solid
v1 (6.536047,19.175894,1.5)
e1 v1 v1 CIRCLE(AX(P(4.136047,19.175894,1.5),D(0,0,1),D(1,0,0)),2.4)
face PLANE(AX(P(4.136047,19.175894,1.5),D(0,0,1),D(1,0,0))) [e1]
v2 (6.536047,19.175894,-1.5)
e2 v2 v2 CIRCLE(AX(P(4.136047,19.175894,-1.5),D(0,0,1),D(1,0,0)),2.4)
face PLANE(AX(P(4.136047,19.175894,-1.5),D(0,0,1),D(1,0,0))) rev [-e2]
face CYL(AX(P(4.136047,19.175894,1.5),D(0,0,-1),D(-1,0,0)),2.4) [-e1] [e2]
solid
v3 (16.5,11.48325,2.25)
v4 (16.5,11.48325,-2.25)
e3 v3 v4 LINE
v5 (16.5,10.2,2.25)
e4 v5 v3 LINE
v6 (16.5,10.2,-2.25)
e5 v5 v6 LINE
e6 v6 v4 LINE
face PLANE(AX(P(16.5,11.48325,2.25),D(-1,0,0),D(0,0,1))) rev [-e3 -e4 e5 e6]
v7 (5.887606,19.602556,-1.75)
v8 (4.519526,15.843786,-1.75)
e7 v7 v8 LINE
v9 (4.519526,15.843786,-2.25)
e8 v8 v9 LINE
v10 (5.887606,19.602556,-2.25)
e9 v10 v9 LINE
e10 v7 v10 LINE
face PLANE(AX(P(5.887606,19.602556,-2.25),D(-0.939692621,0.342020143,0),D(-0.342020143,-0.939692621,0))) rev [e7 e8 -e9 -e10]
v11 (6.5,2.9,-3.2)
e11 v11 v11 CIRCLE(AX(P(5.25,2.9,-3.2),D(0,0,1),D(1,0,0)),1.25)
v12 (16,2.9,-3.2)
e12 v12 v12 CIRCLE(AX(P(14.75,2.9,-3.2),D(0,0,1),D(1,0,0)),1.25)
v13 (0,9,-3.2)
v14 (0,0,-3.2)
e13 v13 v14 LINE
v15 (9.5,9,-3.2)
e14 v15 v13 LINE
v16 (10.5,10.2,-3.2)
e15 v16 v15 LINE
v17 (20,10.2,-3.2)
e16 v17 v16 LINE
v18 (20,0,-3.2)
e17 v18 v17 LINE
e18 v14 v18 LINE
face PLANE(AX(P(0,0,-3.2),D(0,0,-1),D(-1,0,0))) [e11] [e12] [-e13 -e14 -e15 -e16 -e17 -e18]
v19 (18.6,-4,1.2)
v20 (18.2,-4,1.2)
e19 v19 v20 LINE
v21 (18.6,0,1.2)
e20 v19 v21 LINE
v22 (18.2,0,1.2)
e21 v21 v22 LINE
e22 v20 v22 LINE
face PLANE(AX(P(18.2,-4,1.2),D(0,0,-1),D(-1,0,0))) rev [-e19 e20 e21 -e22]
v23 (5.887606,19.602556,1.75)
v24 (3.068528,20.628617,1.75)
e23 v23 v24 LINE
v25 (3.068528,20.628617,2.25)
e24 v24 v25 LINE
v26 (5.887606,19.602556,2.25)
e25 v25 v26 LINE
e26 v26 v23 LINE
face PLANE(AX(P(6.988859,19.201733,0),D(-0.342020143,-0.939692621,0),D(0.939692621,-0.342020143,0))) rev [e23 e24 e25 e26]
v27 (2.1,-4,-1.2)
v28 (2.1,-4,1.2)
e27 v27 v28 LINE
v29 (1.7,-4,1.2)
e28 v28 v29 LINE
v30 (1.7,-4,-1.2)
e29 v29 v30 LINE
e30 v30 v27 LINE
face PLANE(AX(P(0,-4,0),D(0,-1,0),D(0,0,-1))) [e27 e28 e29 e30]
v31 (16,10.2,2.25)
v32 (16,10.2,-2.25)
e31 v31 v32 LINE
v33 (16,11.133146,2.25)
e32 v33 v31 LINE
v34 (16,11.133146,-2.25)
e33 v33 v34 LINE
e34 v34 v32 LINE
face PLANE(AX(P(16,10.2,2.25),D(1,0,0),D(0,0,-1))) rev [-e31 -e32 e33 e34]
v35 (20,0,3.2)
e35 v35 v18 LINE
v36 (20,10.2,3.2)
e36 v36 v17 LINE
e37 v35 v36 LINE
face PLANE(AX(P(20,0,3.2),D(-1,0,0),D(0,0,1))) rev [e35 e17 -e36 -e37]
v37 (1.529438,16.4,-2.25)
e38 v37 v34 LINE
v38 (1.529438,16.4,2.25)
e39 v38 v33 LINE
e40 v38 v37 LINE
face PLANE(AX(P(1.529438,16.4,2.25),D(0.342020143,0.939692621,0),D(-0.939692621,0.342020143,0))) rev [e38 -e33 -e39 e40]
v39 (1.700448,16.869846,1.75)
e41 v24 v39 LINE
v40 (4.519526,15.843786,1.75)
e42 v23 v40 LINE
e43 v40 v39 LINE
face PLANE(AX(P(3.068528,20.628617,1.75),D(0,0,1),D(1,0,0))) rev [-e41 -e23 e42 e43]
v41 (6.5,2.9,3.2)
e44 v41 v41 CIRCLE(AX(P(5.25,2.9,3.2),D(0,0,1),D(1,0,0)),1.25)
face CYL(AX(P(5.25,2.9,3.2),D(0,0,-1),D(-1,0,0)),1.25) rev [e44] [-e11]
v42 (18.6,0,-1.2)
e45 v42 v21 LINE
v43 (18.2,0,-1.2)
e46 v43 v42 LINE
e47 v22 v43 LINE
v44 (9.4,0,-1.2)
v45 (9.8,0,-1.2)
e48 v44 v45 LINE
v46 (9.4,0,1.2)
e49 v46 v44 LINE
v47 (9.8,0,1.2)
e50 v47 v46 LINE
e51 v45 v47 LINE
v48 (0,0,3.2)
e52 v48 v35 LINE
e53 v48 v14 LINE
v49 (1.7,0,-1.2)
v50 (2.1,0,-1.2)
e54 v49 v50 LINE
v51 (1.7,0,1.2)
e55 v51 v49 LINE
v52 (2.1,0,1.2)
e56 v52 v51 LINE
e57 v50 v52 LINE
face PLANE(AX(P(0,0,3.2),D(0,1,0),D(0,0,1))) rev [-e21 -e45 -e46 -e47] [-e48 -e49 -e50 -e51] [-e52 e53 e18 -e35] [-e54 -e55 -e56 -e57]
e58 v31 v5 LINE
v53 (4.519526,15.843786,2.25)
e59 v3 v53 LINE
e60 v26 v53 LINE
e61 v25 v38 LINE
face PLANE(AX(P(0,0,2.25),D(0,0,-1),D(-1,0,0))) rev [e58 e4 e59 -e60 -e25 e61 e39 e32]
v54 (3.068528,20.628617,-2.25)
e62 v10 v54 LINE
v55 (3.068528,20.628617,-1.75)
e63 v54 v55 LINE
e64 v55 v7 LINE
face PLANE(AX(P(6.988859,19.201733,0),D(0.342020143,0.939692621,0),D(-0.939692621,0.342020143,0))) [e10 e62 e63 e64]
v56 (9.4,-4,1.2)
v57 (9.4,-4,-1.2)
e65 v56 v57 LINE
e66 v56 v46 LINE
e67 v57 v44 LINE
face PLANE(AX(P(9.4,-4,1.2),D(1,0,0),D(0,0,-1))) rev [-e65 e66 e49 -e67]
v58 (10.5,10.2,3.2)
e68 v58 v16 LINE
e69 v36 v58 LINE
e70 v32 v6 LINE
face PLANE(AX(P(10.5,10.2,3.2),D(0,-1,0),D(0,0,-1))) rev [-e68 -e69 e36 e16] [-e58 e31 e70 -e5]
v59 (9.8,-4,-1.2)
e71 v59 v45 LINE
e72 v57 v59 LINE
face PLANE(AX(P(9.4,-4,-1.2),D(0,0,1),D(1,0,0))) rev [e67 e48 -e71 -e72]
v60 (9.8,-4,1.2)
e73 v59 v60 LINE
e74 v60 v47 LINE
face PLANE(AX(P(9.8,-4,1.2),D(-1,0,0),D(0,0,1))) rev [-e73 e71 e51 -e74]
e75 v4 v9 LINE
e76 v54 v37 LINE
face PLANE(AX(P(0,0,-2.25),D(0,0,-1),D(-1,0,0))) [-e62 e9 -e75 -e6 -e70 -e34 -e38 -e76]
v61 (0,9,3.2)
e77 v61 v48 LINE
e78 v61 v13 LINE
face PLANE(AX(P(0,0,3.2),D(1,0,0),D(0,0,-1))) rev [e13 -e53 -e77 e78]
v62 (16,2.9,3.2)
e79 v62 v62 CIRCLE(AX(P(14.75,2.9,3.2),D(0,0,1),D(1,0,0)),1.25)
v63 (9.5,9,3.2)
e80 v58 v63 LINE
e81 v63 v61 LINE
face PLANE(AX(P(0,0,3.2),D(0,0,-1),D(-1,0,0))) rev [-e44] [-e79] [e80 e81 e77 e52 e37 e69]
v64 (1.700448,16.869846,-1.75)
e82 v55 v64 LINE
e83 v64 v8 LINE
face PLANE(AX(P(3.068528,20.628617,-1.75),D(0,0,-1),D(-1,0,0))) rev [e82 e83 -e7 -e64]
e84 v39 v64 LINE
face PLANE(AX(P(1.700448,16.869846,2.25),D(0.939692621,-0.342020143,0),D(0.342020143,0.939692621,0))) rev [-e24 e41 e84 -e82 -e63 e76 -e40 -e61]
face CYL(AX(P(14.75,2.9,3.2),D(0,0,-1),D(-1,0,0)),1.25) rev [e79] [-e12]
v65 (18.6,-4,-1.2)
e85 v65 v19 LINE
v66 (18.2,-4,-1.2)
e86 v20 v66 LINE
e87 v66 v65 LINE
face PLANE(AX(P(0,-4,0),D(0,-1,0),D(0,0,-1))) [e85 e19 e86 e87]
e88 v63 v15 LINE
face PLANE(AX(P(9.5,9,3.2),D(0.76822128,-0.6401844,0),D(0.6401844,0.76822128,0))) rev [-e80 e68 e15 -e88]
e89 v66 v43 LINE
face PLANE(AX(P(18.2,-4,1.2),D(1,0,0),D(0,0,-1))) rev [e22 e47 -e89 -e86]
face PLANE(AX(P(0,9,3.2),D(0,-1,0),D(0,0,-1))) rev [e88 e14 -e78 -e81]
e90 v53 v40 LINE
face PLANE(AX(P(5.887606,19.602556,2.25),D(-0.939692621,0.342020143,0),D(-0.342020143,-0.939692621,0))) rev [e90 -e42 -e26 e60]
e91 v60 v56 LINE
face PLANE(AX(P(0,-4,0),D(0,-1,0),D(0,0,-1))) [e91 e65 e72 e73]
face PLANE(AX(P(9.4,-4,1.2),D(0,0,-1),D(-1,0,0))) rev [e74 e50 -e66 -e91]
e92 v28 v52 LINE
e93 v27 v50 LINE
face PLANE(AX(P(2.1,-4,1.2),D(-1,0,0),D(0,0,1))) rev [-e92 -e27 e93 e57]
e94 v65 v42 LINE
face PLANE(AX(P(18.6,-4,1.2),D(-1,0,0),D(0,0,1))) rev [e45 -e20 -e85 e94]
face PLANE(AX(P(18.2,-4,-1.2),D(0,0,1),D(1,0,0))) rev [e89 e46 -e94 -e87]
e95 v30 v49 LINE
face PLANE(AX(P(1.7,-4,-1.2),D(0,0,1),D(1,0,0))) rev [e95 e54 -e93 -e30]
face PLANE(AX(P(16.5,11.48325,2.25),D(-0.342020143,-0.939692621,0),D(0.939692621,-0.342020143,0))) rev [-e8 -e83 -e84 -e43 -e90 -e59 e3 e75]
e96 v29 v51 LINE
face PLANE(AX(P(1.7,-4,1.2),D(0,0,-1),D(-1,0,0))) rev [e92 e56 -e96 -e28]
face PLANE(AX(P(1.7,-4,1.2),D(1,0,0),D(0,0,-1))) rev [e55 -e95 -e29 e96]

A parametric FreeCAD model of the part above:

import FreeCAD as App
import Part
import Sketcher

V = App.Vector
Q = App.Units.Quantity

doc = App.newDocument("Part")
body = doc.addObject("PartDesign::Body", "Body")

# Sketch on XY plane
sketch1 = body.newObject("Sketcher::SketchObject", "Sketch")
sketch1.AttachmentSupport = (doc.getObject("XY_Plane"), [""])
sketch1.MapMode = "FlatFace"
sketch1.addGeometry(Part.LineSegment(V(9.5, 9, 0), V(0, 9, 0)), False)
sketch1.addGeometry(Part.LineSegment(V(0, 9, 0), V(0, 0, 0)), False)
sketch1.addGeometry(Part.LineSegment(V(0, 0, 0), V(20, 0, 0)), False)
sketch1.addGeometry(Part.LineSegment(V(20, 0, 0), V(20, 10.2, 0)), False)
sketch1.addGeometry(Part.LineSegment(V(20, 10.2, 0), V(10.5, 10.2, 0)), False)
sketch1.addGeometry(Part.LineSegment(V(10.5, 10.2, 0), V(9.5, 9, 0)), False)
sketch1.addGeometry(Part.Circle(V(14.8, 2.9, 0), V(0, 0, 1), 1.2), False)
sketch1.addGeometry(Part.Circle(V(5.2, 2.9, 0), V(0, 0, 1), 1.2), False)
sketch1.addConstraint(Sketcher.Constraint("Coincident", 0, 2, 1, 1))
sketch1.addConstraint(Sketcher.Constraint("Coincident", 1, 2, 2, 1))
sketch1.addConstraint(Sketcher.Constraint("Coincident", 2, 2, 3, 1))
sketch1.addConstraint(Sketcher.Constraint("Coincident", 3, 2, 4, 1))
sketch1.addConstraint(Sketcher.Constraint("Coincident", 4, 2, 5, 1))
sketch1.addConstraint(Sketcher.Constraint("Coincident", 5, 2, 0, 1))
sketch1.addConstraint(Sketcher.Constraint("Horizontal", 0))
sketch1.addConstraint(Sketcher.Constraint("Vertical", 1))
sketch1.addConstraint(Sketcher.Constraint("Horizontal", 2))
sketch1.addConstraint(Sketcher.Constraint("Vertical", 3))
sketch1.addConstraint(Sketcher.Constraint("Horizontal", 4))
sketch1.addConstraint(Sketcher.Constraint("Coincident", 1, 2, -1, 1))
sketch1.addConstraint(Sketcher.Constraint("Equal", 6, 7))
sketch1.addConstraint(Sketcher.Constraint("Horizontal", 6, 3, 7, 3))
sketch1.addConstraint(Sketcher.Constraint("Equal", 0, 4))
sketch1.addConstraint(Sketcher.Constraint("Diameter", 6, Q("2.5 mm")))
sketch1.addConstraint(Sketcher.Constraint("DistanceX", 2, 1, 2, 2, Q("20 mm")))
sketch1.addConstraint(Sketcher.Constraint("DistanceY", 1, 2, 1, 1, Q("9 mm")))
sketch1.addConstraint(Sketcher.Constraint("DistanceX", 0, 2, 0, 1, Q("9.5 mm")))
sketch1.addConstraint(Sketcher.Constraint("DistanceY", 3, 1, 3, 2, Q("10.2 mm")))
sketch1.addConstraint(Sketcher.Constraint("DistanceY", -1, 1, 6, 3, Q("2.9 mm")))
sketch1.addConstraint(Sketcher.Constraint("DistanceX", 7, 3, 6, 3, Q("9.5 mm")))
sketch1.addConstraint(Sketcher.Constraint("DistanceX", -1, 1, 6, 3, Q("14.75 mm")))
pad1 = body.newObject("PartDesign::Pad", "Pad")
pad1.Profile = sketch1
pad1.Length = 6.4
pad1.Midplane = True

# Sketch on XZ plane
sketch2 = body.newObject("Sketcher::SketchObject", "Sketch001")
sketch2.AttachmentSupport = (doc.getObject("XZ_Plane"), [""])
sketch2.MapMode = "FlatFace"
sketch2.addGeometry(Part.LineSegment(V(1.7, 1.2, 0), V(1.7, -1.2, 0)), False)
sketch2.addGeometry(Part.LineSegment(V(1.7, -1.2, 0), V(2.1, -1.2, 0)), False)
sketch2.addGeometry(Part.LineSegment(V(2.1, -1.2, 0), V(2.1, 1.2, 0)), False)
sketch2.addGeometry(Part.LineSegment(V(2.1, 1.2, 0), V(1.7, 1.2, 0)), False)
sketch2.addGeometry(Part.LineSegment(V(9.4, 1.2, 0), V(9.4, -1.2, 0)), False)
sketch2.addGeometry(Part.LineSegment(V(9.4, -1.2, 0), V(9.8, -1.2, 0)), False)
sketch2.addGeometry(Part.LineSegment(V(9.8, -1.2, 0), V(9.8, 1.2, 0)), False)
sketch2.addGeometry(Part.LineSegment(V(9.8, 1.2, 0), V(9.4, 1.2, 0)), False)
sketch2.addGeometry(Part.LineSegment(V(18.2, 1.2, 0), V(18.2, -1.2, 0)), False)
sketch2.addGeometry(Part.LineSegment(V(18.2, -1.2, 0), V(18.6, -1.2, 0)), False)
sketch2.addGeometry(Part.LineSegment(V(18.6, -1.2, 0), V(18.6, 1.2, 0)), False)
sketch2.addGeometry(Part.LineSegment(V(18.6, 1.2, 0), V(18.2, 1.2, 0)), False)
sketch2.addConstraint(Sketcher.Constraint("Coincident", 0, 2, 1, 1))
sketch2.addConstraint(Sketcher.Constraint("Coincident", 1, 2, 2, 1))
sketch2.addConstraint(Sketcher.Constraint("Coincident", 2, 2, 3, 1))
sketch2.addConstraint(Sketcher.Constraint("Coincident", 3, 2, 0, 1))
sketch2.addConstraint(Sketcher.Constraint("Coincident", 4, 2, 5, 1))
sketch2.addConstraint(Sketcher.Constraint("Coincident", 5, 2, 6, 1))
sketch2.addConstraint(Sketcher.Constraint("Coincident", 6, 2, 7, 1))
sketch2.addConstraint(Sketcher.Constraint("Coincident", 7, 2, 4, 1))
sketch2.addConstraint(Sketcher.Constraint("Coincident", 8, 2, 9, 1))
sketch2.addConstraint(Sketcher.Constraint("Coincident", 9, 2, 10, 1))
sketch2.addConstraint(Sketcher.Constraint("Coincident", 10, 2, 11, 1))
sketch2.addConstraint(Sketcher.Constraint("Coincident", 11, 2, 8, 1))
sketch2.addConstraint(Sketcher.Constraint("Vertical", 0))
sketch2.addConstraint(Sketcher.Constraint("Horizontal", 1))
sketch2.addConstraint(Sketcher.Constraint("Vertical", 2))
sketch2.addConstraint(Sketcher.Constraint("Horizontal", 3))
sketch2.addConstraint(Sketcher.Constraint("Vertical", 4))
sketch2.addConstraint(Sketcher.Constraint("Horizontal", 5))
sketch2.addConstraint(Sketcher.Constraint("Vertical", 6))
sketch2.addConstraint(Sketcher.Constraint("Horizontal", 7))
sketch2.addConstraint(Sketcher.Constraint("Vertical", 8))
sketch2.addConstraint(Sketcher.Constraint("Horizontal", 9))
sketch2.addConstraint(Sketcher.Constraint("Vertical", 10))
sketch2.addConstraint(Sketcher.Constraint("Horizontal", 11))
sketch2.addConstraint(Sketcher.Constraint("Horizontal", 1, 2, 4, 2))
sketch2.addConstraint(Sketcher.Constraint("Horizontal", 3, 2, 6, 2))
sketch2.addConstraint(Sketcher.Constraint("Horizontal", 5, 2, 8, 2))
sketch2.addConstraint(Sketcher.Constraint("Horizontal", 7, 2, 10, 2))
sketch2.addConstraint(Sketcher.Constraint("Equal", 3, 5))
sketch2.addConstraint(Sketcher.Constraint("Equal", 7, 9))
sketch2.addConstraint(Sketcher.Constraint("DistanceX", 1, 1, 1, 2, Q("0.4 mm")))
sketch2.addConstraint(Sketcher.Constraint("DistanceY", 0, 2, 0, 1, Q("2.4 mm")))
sketch2.addConstraint(Sketcher.Constraint("DistanceX", -1, 1, 0, 2, Q("1.7 mm")))
sketch2.addConstraint(Sketcher.Constraint("DistanceY", 0, 2, -1, 1, Q("1.2 mm")))
sketch2.addConstraint(Sketcher.Constraint("DistanceX", -1, 1, 4, 2, Q("9.4 mm")))
sketch2.addConstraint(Sketcher.Constraint("DistanceX", -1, 1, 8, 2, Q("18.2 mm")))
pad2 = body.newObject("PartDesign::Pad", "Pad001")
pad2.Profile = sketch2
pad2.Length = 4

# Sketch on XY plane
sketch3 = body.newObject("Sketcher::SketchObject", "Sketch002")
sketch3.AttachmentSupport = (doc.getObject("XY_Plane"), [""])
sketch3.MapMode = "FlatFace"
sketch3.addGeometry(Part.LineSegment(V(16, 11.13, 0), V(16, 10.2, 0)), False)
sketch3.addGeometry(Part.LineSegment(V(16, 10.2, 0), V(16.5, 10.2, 0)), False)
sketch3.addGeometry(Part.LineSegment(V(16.5, 10.2, 0), V(16.5, 11.48, 0)), False)
sketch3.addGeometry(Part.LineSegment(V(16.5, 11.48, 0), V(1.7, 16.87, 0)), False)
sketch3.addGeometry(Part.LineSegment(V(1.7, 16.87, 0), V(1.53, 16.4, 0)), False)
sketch3.addGeometry(Part.LineSegment(V(1.53, 16.4, 0), V(16, 11.13, 0)), False)
sketch3.addConstraint(Sketcher.Constraint("Coincident", 0, 2, 1, 1))
sketch3.addConstraint(Sketcher.Constraint("Coincident", 1, 2, 2, 1))
sketch3.addConstraint(Sketcher.Constraint("Coincident", 2, 2, 3, 1))
sketch3.addConstraint(Sketcher.Constraint("Coincident", 3, 2, 4, 1))
sketch3.addConstraint(Sketcher.Constraint("Coincident", 4, 2, 5, 1))
sketch3.addConstraint(Sketcher.Constraint("Coincident", 5, 2, 0, 1))
sketch3.addConstraint(Sketcher.Constraint("Vertical", 0))
sketch3.addConstraint(Sketcher.Constraint("Horizontal", 1))
sketch3.addConstraint(Sketcher.Constraint("Vertical", 2))
sketch3.addConstraint(Sketcher.Constraint("Perpendicular", 3, 4))
sketch3.addConstraint(Sketcher.Constraint("Perpendicular", 4, 5))
sketch3.addConstraint(Sketcher.Constraint("Angle", 3, Q("160 deg")))
sketch3.addConstraint(Sketcher.Constraint("DistanceX", 1, 1, 1, 2, Q("0.5 mm")))
sketch3.addConstraint(Sketcher.Constraint("DistanceX", -1, 1, 0, 2, Q("16 mm")))
sketch3.addConstraint(Sketcher.Constraint("Distance", 4, Q("0.5 mm")))
sketch3.addConstraint(Sketcher.Constraint("DistanceY", -1, 1, 0, 2, Q("10.2 mm")))
sketch3.addConstraint(Sketcher.Constraint("DistanceY", -1, 1, 4, 2, Q("16.4 mm")))
sketch3.addConstraint(Sketcher.Constraint("DistanceY", 2, 1, 2, 2, Q("1.28325 mm")))
pad3 = body.newObject("PartDesign::Pad", "Pad002")
pad3.Profile = sketch3
pad3.Length = 4.5
pad3.Midplane = True

# Sketch on an angled plane
sketch4 = body.newObject("Sketcher::SketchObject", "Sketch003")
sketch4.Placement = App.Placement(V(5.620779, 15.442963, 0), App.Rotation(V(0.939692621, -0.342020143, 0), V(0, 0, -1), V(0.342020143, 0.939692621, 0), "ZXY"))
sketch4.addGeometry(Part.LineSegment(V(-4.2, 2.3, 0), V(-4.2, 1.8, 0)), False)
sketch4.addGeometry(Part.LineSegment(V(-4.2, 1.8, 0), V(-1.2, 1.8, 0)), False)
sketch4.addGeometry(Part.LineSegment(V(-1.2, 1.8, 0), V(-1.2, 2.3, 0)), False)
sketch4.addGeometry(Part.LineSegment(V(-1.2, 2.3, 0), V(-4.2, 2.3, 0)), False)
sketch4.addGeometry(Part.LineSegment(V(-4.2, -1.8, 0), V(-4.2, -2.3, 0)), False)
sketch4.addGeometry(Part.LineSegment(V(-4.2, -2.3, 0), V(-1.2, -2.3, 0)), False)
sketch4.addGeometry(Part.LineSegment(V(-1.2, -2.3, 0), V(-1.2, -1.8, 0)), False)
sketch4.addGeometry(Part.LineSegment(V(-1.2, -1.8, 0), V(-4.2, -1.8, 0)), False)
sketch4.addConstraint(Sketcher.Constraint("Coincident", 0, 2, 1, 1))
sketch4.addConstraint(Sketcher.Constraint("Coincident", 1, 2, 2, 1))
sketch4.addConstraint(Sketcher.Constraint("Coincident", 2, 2, 3, 1))
sketch4.addConstraint(Sketcher.Constraint("Coincident", 3, 2, 0, 1))
sketch4.addConstraint(Sketcher.Constraint("Coincident", 4, 2, 5, 1))
sketch4.addConstraint(Sketcher.Constraint("Coincident", 5, 2, 6, 1))
sketch4.addConstraint(Sketcher.Constraint("Coincident", 6, 2, 7, 1))
sketch4.addConstraint(Sketcher.Constraint("Coincident", 7, 2, 4, 1))
sketch4.addConstraint(Sketcher.Constraint("Vertical", 0))
sketch4.addConstraint(Sketcher.Constraint("Horizontal", 1))
sketch4.addConstraint(Sketcher.Constraint("Vertical", 2))
sketch4.addConstraint(Sketcher.Constraint("Horizontal", 3))
sketch4.addConstraint(Sketcher.Constraint("Vertical", 4))
sketch4.addConstraint(Sketcher.Constraint("Horizontal", 5))
sketch4.addConstraint(Sketcher.Constraint("Vertical", 6))
sketch4.addConstraint(Sketcher.Constraint("Horizontal", 7))
sketch4.addConstraint(Sketcher.Constraint("Symmetric", 3, 2, 4, 2, -1))
sketch4.addConstraint(Sketcher.Constraint("Symmetric", 1, 2, 6, 2, -1))
sketch4.addConstraint(Sketcher.Constraint("DistanceX", 1, 1, 1, 2, Q("3 mm")))
sketch4.addConstraint(Sketcher.Constraint("DistanceY", 0, 2, 0, 1, Q("0.5 mm")))
sketch4.addConstraint(Sketcher.Constraint("DistanceY", 4, 2, 0, 2, Q("4 mm")))
sketch4.addConstraint(Sketcher.Constraint("DistanceX", 0, 2, -1, 1, Q("4.171929 mm")))
pad4 = body.newObject("PartDesign::Pad", "Pad003")
pad4.Profile = sketch4
pad4.Length = 4
body2 = doc.addObject("PartDesign::Body", "Body001")

# Sketch on XY plane
sketch5 = body2.newObject("Sketcher::SketchObject", "Sketch004")
sketch5.AttachmentSupport = (doc.getObject("XY_Plane001"), [""])
sketch5.MapMode = "FlatFace"
sketch5.addGeometry(Part.Circle(V(4.1, 19.2, 0), V(0, 0, 1), 2.4), False)
sketch5.addConstraint(Sketcher.Constraint("Diameter", 0, Q("4.8 mm")))
sketch5.addConstraint(Sketcher.Constraint("DistanceX", -1, 1, 0, 3, Q("4.136047 mm")))
sketch5.addConstraint(Sketcher.Constraint("DistanceY", -1, 1, 0, 3, Q("19.175894 mm")))
pad5 = body2.newObject("PartDesign::Pad", "Pad004")
pad5.Profile = sketch5
pad5.Length = 3
pad5.Midplane = True

doc.recompute()
